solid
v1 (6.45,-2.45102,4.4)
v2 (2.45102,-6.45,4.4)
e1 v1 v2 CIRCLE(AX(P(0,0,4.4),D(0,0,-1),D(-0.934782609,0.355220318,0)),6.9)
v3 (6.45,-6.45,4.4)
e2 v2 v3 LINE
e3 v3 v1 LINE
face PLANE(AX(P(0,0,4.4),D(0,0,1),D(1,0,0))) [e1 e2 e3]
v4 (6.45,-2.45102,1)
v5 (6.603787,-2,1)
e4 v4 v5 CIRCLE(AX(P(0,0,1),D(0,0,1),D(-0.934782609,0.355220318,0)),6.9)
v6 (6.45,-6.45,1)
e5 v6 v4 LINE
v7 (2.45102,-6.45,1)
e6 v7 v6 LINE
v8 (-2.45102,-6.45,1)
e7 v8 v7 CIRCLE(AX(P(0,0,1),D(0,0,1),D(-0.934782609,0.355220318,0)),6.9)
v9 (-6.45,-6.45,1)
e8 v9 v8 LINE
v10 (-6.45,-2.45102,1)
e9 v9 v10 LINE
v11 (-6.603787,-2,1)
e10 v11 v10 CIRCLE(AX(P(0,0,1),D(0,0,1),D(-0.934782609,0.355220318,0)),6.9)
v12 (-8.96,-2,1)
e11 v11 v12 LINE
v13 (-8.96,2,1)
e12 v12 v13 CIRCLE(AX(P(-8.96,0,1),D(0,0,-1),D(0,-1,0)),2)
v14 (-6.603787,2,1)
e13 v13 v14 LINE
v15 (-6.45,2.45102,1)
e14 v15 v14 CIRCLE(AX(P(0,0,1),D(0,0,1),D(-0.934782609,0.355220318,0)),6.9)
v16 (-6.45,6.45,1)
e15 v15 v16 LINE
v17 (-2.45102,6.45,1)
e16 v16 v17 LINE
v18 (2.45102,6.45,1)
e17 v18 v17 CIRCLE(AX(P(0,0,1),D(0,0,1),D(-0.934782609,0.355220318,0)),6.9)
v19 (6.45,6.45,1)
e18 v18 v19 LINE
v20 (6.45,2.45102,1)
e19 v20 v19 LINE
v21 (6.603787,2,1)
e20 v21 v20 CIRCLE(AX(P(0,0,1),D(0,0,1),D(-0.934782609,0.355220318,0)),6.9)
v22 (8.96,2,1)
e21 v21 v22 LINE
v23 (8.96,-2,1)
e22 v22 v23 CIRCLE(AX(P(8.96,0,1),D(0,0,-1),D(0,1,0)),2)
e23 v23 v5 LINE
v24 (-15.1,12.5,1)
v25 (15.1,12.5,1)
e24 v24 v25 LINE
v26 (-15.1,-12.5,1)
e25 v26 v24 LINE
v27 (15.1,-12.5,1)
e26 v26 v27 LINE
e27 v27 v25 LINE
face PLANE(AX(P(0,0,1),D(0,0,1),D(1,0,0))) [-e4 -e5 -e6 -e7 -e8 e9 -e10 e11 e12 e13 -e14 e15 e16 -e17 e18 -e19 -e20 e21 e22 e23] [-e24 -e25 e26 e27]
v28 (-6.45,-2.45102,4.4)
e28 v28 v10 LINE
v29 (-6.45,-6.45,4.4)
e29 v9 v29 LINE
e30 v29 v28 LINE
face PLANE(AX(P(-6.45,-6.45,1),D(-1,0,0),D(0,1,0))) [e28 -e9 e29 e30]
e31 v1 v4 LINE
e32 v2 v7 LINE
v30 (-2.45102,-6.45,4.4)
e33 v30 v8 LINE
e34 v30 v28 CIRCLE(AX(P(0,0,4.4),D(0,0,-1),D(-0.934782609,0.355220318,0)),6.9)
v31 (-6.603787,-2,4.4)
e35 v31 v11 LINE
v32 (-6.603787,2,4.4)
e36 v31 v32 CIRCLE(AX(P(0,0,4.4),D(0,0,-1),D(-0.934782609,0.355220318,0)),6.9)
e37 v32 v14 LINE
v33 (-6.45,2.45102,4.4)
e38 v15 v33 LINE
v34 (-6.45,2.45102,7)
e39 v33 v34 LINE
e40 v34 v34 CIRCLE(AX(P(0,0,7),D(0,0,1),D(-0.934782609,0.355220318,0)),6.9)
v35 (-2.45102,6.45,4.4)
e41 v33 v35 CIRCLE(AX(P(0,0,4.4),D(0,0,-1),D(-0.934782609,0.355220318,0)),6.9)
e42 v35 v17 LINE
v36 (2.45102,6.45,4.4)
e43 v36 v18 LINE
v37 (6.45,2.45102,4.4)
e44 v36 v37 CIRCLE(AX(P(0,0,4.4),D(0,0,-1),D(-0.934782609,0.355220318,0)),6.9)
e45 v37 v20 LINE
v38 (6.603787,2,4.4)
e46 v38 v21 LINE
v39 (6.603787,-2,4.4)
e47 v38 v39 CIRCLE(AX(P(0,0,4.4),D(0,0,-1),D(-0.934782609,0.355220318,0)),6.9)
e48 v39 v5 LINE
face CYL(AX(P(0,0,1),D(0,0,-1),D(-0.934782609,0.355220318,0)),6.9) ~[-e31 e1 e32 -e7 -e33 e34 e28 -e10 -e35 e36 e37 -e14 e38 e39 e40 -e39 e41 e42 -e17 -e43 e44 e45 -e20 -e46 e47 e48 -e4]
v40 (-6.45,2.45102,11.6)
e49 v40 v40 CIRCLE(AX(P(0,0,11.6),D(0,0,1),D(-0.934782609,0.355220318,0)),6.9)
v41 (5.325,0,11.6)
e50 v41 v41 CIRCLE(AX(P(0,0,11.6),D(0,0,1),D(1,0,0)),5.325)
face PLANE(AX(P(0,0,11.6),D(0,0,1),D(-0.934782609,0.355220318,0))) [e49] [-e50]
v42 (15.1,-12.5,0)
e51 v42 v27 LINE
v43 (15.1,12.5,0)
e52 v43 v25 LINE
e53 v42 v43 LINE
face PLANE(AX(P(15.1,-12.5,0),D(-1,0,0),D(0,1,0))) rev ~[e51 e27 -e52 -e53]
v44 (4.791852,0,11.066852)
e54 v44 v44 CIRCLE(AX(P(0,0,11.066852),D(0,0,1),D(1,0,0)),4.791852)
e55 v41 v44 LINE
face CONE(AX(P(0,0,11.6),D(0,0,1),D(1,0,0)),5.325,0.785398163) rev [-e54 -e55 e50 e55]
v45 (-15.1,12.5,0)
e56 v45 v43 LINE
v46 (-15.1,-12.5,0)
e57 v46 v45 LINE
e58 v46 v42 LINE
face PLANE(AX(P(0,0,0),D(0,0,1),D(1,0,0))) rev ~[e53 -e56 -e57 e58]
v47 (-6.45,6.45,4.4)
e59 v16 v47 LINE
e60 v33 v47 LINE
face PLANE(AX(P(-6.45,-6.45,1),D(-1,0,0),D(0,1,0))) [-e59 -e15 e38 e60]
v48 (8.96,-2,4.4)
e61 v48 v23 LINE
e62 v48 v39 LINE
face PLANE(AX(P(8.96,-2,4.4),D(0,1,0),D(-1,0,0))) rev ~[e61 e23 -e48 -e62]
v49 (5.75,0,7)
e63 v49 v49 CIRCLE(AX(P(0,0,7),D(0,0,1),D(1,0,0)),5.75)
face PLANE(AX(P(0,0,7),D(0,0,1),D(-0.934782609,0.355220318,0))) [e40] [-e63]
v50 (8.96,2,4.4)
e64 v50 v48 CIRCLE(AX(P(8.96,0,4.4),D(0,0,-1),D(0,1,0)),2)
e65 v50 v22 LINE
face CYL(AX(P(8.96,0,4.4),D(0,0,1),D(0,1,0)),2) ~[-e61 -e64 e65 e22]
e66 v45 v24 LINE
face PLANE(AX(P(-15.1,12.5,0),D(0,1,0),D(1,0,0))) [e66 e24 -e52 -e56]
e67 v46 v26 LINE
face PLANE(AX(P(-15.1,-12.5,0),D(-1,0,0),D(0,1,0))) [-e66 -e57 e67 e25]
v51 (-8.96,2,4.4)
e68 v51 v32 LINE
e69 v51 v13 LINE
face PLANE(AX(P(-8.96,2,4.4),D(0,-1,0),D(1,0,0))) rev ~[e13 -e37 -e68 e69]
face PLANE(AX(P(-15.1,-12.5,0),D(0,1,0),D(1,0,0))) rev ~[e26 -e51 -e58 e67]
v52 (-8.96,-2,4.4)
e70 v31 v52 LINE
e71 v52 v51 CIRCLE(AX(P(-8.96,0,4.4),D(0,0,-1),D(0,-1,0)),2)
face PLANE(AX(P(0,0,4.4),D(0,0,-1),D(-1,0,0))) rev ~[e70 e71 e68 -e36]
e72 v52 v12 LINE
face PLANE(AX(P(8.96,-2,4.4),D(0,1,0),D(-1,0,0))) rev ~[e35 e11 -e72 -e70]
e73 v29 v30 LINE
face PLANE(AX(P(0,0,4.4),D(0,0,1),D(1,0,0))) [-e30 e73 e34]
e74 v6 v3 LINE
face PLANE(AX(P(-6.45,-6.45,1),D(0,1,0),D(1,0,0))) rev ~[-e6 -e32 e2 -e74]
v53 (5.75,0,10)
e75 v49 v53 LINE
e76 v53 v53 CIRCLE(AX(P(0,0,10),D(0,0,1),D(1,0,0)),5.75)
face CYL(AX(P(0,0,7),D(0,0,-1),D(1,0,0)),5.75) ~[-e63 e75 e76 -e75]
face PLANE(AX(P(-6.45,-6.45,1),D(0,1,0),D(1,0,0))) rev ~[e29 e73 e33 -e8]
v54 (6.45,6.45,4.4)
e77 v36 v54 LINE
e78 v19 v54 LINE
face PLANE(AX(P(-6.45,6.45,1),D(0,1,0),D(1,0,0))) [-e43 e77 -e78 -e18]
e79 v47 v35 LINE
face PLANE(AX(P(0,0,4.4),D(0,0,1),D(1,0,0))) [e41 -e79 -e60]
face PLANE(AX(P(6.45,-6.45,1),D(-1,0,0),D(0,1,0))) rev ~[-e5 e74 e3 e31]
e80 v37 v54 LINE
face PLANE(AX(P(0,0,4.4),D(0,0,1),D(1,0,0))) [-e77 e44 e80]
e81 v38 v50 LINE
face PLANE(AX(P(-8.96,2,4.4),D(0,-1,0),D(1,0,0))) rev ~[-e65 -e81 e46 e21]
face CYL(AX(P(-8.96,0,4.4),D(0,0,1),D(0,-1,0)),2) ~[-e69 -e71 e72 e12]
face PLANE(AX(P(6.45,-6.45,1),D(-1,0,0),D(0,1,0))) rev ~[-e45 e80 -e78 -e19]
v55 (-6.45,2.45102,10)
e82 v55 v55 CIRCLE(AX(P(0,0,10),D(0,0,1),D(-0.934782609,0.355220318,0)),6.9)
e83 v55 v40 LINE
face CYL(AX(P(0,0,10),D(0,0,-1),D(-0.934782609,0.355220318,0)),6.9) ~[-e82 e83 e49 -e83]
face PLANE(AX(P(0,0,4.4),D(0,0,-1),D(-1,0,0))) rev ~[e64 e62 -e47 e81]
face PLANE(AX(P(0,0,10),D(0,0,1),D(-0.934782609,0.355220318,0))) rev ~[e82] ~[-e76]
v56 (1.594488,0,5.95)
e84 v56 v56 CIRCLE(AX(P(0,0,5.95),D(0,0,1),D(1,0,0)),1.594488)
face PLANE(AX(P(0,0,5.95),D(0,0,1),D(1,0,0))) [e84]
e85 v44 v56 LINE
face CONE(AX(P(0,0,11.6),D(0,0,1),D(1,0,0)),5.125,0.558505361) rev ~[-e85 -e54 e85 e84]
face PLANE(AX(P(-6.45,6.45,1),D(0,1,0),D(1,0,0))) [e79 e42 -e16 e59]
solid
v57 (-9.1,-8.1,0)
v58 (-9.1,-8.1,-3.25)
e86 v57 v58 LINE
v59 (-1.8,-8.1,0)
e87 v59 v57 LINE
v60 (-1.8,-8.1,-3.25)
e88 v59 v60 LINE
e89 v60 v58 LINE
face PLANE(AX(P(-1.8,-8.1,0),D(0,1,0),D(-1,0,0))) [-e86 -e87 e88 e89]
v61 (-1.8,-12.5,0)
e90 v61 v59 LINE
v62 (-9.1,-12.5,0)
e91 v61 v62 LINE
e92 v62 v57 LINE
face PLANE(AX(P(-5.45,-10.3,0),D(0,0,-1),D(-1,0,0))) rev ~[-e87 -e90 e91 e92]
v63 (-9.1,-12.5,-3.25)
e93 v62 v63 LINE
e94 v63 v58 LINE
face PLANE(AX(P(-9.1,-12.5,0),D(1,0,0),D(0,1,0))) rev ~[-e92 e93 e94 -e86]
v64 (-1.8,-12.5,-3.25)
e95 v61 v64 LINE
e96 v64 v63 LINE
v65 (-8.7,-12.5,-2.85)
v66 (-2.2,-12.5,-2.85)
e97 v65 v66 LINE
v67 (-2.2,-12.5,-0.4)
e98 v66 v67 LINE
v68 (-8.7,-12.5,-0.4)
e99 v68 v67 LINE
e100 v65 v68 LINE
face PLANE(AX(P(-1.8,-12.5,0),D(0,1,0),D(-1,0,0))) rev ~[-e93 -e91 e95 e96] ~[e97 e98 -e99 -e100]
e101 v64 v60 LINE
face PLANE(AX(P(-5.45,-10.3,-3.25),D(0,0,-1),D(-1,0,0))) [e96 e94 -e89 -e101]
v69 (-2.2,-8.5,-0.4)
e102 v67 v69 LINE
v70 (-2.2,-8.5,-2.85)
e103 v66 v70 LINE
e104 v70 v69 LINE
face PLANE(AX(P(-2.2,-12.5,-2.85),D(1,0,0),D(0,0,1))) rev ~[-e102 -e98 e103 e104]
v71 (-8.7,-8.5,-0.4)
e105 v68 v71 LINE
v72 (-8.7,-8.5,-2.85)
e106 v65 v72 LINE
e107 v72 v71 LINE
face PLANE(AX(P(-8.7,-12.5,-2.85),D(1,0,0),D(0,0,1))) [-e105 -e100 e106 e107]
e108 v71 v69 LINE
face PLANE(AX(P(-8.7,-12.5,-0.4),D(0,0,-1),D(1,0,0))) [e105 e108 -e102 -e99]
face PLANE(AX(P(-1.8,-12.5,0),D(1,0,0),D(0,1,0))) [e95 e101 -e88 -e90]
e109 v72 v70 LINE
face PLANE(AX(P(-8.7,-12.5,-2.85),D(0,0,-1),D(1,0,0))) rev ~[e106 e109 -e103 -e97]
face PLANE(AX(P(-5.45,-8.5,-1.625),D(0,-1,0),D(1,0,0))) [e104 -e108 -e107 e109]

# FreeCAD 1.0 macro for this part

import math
import FreeCAD as App
import Part
import Sketcher
Q = App.Units.Quantity


def edges_at(feature, points):
    """Names of the edges that pass closest to the given points."""
    edges = feature.Shape.Edges
    near = lambda p: min(range(len(edges)), key=lambda i: edges[i].distToShape(Part.Vertex(*p))[0])
    return sorted({f"Edge{near(p) + 1}" for p in points})


def faces_at(feature, points):
    """Names of the faces that lie closest to the given points."""
    faces = feature.Shape.Faces
    near = lambda p: min(range(len(faces)), key=lambda i: faces[i].distToShape(Part.Vertex(*p))[0])
    return sorted({f"Face{near(p) + 1}" for p in points})


def add_polygon(sketch, points):
    """Adds a closed chain of lines whose ends are joined by coincident constraints."""
    first, n = sketch.GeometryCount, len(points)
    for a, b in zip(points, points[1:] + points[:1]):
        sketch.addGeometry(Part.LineSegment(App.Vector(*a, 0), App.Vector(*b, 0)), False)
    for i in range(n):
        sketch.addConstraint(Sketcher.Constraint("Coincident", first + i, 2, first + (i + 1) % n, 1))

doc = App.newDocument("Part")
body = doc.addObject("PartDesign::Body", "Body")

# Sketch on XY plane
sketch1 = body.newObject("Sketcher::SketchObject", "Sketch")
sketch1.AttachmentSupport = (doc.getObject("XY_Plane"), [""])
sketch1.MapMode = "FlatFace"
add_polygon(sketch1, [(-15, 12), (-15, -12), (15, -12), (15, 12)])  # lines 0-3
sketch1.addConstraint([
    Sketcher.Constraint("Vertical", 0),
    Sketcher.Constraint("Horizontal", 1),
    Sketcher.Constraint("Vertical", 2),
    Sketcher.Constraint("Horizontal", 3),
    Sketcher.Constraint("Symmetric", 0, 2, 2, 2, -1, 1),
    Sketcher.Constraint("DistanceY", 0, 2, 0, 1, Q("25 mm")),
    Sketcher.Constraint("DistanceX", 1, 1, 1, 2, Q("30.2 mm")),
])
pad1 = body.newObject("PartDesign::Pad", "Pad")
pad1.Profile = sketch1
pad1.Length = 1

# Sketch on XY plane
sketch2 = body.newObject("Sketcher::SketchObject", "Sketch001")
sketch2.AttachmentSupport = (doc.getObject("XY_Plane"), [""])
sketch2.MapMode = "FlatFace"
sketch2.AttachmentOffset = App.Placement(App.Vector(0, 0, 1), App.Rotation())
add_polygon(sketch2, [(-6, 6), (-6, -6), (6, -6), (6, 6)])  # lines 0-3
sketch2.addConstraint([
    Sketcher.Constraint("Vertical", 0),
    Sketcher.Constraint("Horizontal", 1),
    Sketcher.Constraint("Vertical", 2),
    Sketcher.Constraint("Horizontal", 3),
    Sketcher.Constraint("Symmetric", 0, 2, 2, 2, -1, 1),
    Sketcher.Constraint("Equal", 3, 0),
    Sketcher.Constraint("DistanceX", 1, 1, 1, 2, Q("12.9 mm")),
])
pad2 = body.newObject("PartDesign::Pad", "Pad001")
pad2.Profile = sketch2
pad2.Length = 3.4

# Sketch on XY plane
sketch3 = body.newObject("Sketcher::SketchObject", "Sketch002")
sketch3.AttachmentSupport = (doc.getObject("XY_Plane"), [""])
sketch3.MapMode = "FlatFace"
sketch3.AttachmentOffset = App.Placement(App.Vector(0, 0, 1), App.Rotation())
sketch3.addGeometry(Part.Circle(App.Vector(0, 0, 0), App.Vector(0, 0, 1), 7), False)
sketch3.addConstraint([
    Sketcher.Constraint("Coincident", 0, 3, -1, 1),
    Sketcher.Constraint("Diameter", 0, Q("13.8 mm")),
])
pad3 = body.newObject("PartDesign::Pad", "Pad002")
pad3.Profile = sketch3
pad3.Length = 6

# Sketch on XY plane
sketch4 = body.newObject("Sketcher::SketchObject", "Sketch003")
sketch4.AttachmentSupport = (doc.getObject("XY_Plane"), [""])
sketch4.MapMode = "FlatFace"
sketch4.AttachmentOffset = App.Placement(App.Vector(0, 0, 7), App.Rotation())
sketch4.addGeometry(Part.Circle(App.Vector(0, 0, 0), App.Vector(0, 0, 1), 6), False)
sketch4.addConstraint([
    Sketcher.Constraint("Coincident", 0, 3, -1, 1),
    Sketcher.Constraint("Diameter", 0, Q("11.5 mm")),
])
pad4 = body.newObject("PartDesign::Pad", "Pad003")
pad4.Profile = sketch4
pad4.Length = 3

# Sketch on XY plane
sketch5 = body.newObject("Sketcher::SketchObject", "Sketch004")
sketch5.AttachmentSupport = (doc.getObject("XY_Plane"), [""])
sketch5.MapMode = "FlatFace"
sketch5.AttachmentOffset = App.Placement(App.Vector(0, 0, 10), App.Rotation())
sketch5.addGeometry(Part.Circle(App.Vector(0, 0, 0), App.Vector(0, 0, 1), 7), False)
sketch5.addConstraint([
    Sketcher.Constraint("Coincident", 0, 3, -1, 1),
    Sketcher.Constraint("Diameter", 0, Q("13.8 mm")),
])
pad5 = body.newObject("PartDesign::Pad", "Pad004")
pad5.Profile = sketch5
pad5.Length = 1.6
body2 = doc.addObject("PartDesign::Body", "Body001")

# Sketch on XY plane
sketch6 = body2.newObject("Sketcher::SketchObject", "Sketch005")
sketch6.AttachmentSupport = (doc.getObject("XY_Plane001"), [""])
sketch6.MapMode = "FlatFace"
sketch6.AttachmentOffset = App.Placement(App.Vector(0, 0, 11.6), App.Rotation())
sketch6.addGeometry(Part.Circle(App.Vector(0, 0, 0), App.Vector(0, 0, 1), 5), False)
sketch6.addConstraint([
    Sketcher.Constraint("Coincident", 0, 3, -1, 1),
    Sketcher.Constraint("Diameter", 0, Q("10.25 mm")),
])
pad6 = body2.newObject("PartDesign::Pad", "Pad005")
pad6.Profile = sketch6
pad6.Length = 5.65
pad6.Reversed = True
doc.recompute()

datumplane = body2.newObject("PartDesign::Plane", "DatumPlane")
datumplane.AttachmentSupport = (doc.getObject("XY_Plane001"), [""])
datumplane.MapMode = "FlatFace"
datumplane.AttachmentOffset = App.Placement(App.Vector(0, 0, 11.6), App.Rotation())
draft = body2.newObject("PartDesign::Draft", "Draft")
draft.Base = (pad6, faces_at(pad6, [(-5.125, 0, 8.775)]))
draft.NeutralPlane = (datumplane, [""])
draft.Angle = 32
draft.Reversed = True
doc.recompute()

boolean = body.newObject("PartDesign::Boolean", "Boolean")
boolean.Type = "Cut"
boolean.addObjects([body2])
doc.recompute()

chamfer = body.newObject("PartDesign::Chamfer", "Chamfer")
chamfer.Base = (boolean, edges_at(boolean, [(-5.125, 0, 11.6)]))
chamfer.ChamferType = "Two distances"
chamfer.Size = 0.2
chamfer.Size2 = 0.628676

# Sketch on XY plane
sketch7 = body.newObject("Sketcher::SketchObject", "Sketch006")
sketch7.AttachmentSupport = (doc.getObject("XY_Plane"), [""])
sketch7.MapMode = "FlatFace"
sketch7.AttachmentOffset = App.Placement(App.Vector(0, 0, 4.4), App.Rotation())
sketch7.addGeometry([
    Part.LineSegment(App.Vector(-9, -2, 0), App.Vector(9, -2, 0)),
    Part.ArcOfCircle(Part.Circle(App.Vector(9, 0, 0), App.Vector(0, 0, 1), 2), math.radians(-90), math.radians(90)),
    Part.LineSegment(App.Vector(9, 2, 0), App.Vector(-9, 2, 0)),
    Part.ArcOfCircle(Part.Circle(App.Vector(-9, 0, 0), App.Vector(0, 0, 1), 2), math.radians(90), math.radians(270)),
], False)
sketch7.addConstraint([
    Sketcher.Constraint("Tangent", 0, 2, 1, 1),
    Sketcher.Constraint("Tangent", 1, 2, 2, 1),
    Sketcher.Constraint("Tangent", 2, 2, 3, 1),
    Sketcher.Constraint("Tangent", 3, 2, 0, 1),
    Sketcher.Constraint("Horizontal", 0),
    Sketcher.Constraint("Horizontal", 2),
    Sketcher.Constraint("Symmetric", 1, 3, 3, 3, -1, 1),
    Sketcher.Constraint("Radius", 1, Q("2 mm")),
    Sketcher.Constraint("DistanceX", 0, 1, 0, 2, Q("17.92 mm")),
])
pad7 = body.newObject("PartDesign::Pad", "Pad006")
pad7.Profile = sketch7
pad7.Length = 3.4
pad7.Reversed = True
body3 = doc.addObject("PartDesign::Body", "Body002")

# Sketch on XY plane
sketch8 = body3.newObject("Sketcher::SketchObject", "Sketch007")
sketch8.AttachmentSupport = (doc.getObject("XY_Plane002"), [""])
sketch8.MapMode = "FlatFace"
add_polygon(sketch8, [(-1.8, -8.1), (-1.8, -12.5), (-9.1, -12.5), (-9.1, -8.1)])  # lines 0-3
sketch8.addConstraint([
    Sketcher.Constraint("Vertical", 0),
    Sketcher.Constraint("Horizontal", 1),
    Sketcher.Constraint("Vertical", 2),
    Sketcher.Constraint("Horizontal", 3),
    Sketcher.Constraint("DistanceX", 1, 2, 1, 1, Q("7.3 mm")),
    Sketcher.Constraint("DistanceY", 0, 2, 0, 1, Q("4.4 mm")),
    Sketcher.Constraint("DistanceX", 0, 2, -1, 1, Q("1.8 mm")),
    Sketcher.Constraint("DistanceY", 0, 2, -1, 1, Q("12.5 mm")),
])
pad8 = body3.newObject("PartDesign::Pad", "Pad007")
pad8.Profile = sketch8
pad8.Length = 3.25
pad8.Reversed = True

# Sketch on XZ plane
sketch9 = body3.newObject("Sketcher::SketchObject", "Sketch008")
sketch9.AttachmentSupport = (doc.getObject("XZ_Plane002"), [""])
sketch9.MapMode = "FlatFace"
sketch9.AttachmentOffset = App.Placement(App.Vector(0, 0, 12.5), App.Rotation())
add_polygon(sketch9, [(-8.7, -0.4), (-8.7, -2.9), (-2.2, -2.9), (-2.2, -0.4)])  # lines 0-3
sketch9.addConstraint([
    Sketcher.Constraint("Vertical", 0),
    Sketcher.Constraint("Horizontal", 1),
    Sketcher.Constraint("Vertical", 2),
    Sketcher.Constraint("Horizontal", 3),
    Sketcher.Constraint("DistanceX", 1, 1, 1, 2, Q("6.5 mm")),
    Sketcher.Constraint("DistanceY", 0, 2, 0, 1, Q("2.45 mm")),
    Sketcher.Constraint("DistanceX", 0, 2, -1, 1, Q("8.7 mm")),
    Sketcher.Constraint("DistanceY", 2, 2, -1, 1, Q("0.4 mm")),
])
pocket1 = body3.newObject("PartDesign::Pocket", "Pocket")
pocket1.Profile = sketch9
pocket1.Length = 4

doc.recompute()
